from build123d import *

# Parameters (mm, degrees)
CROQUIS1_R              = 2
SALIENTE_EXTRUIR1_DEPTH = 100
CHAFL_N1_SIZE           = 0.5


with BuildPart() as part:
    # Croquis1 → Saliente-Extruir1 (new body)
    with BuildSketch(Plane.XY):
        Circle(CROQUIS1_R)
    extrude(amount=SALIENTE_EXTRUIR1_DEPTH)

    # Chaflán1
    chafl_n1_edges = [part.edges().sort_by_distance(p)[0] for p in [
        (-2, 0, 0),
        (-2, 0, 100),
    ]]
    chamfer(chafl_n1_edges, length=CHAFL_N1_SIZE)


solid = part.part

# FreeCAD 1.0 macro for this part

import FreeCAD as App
import Part
import Sketcher
Q = App.Units.Quantity


def edges_at(feature, points):
    """Names of the edges that pass closest to the given points."""
    edges = feature.Shape.Edges
    near = lambda p: min(range(len(edges)), key=lambda i: edges[i].distToShape(Part.Vertex(*p))[0])
    return sorted({f"Edge{near(p) + 1}" for p in points})

doc = App.newDocument("Part")
params = doc.addObject("Spreadsheet::Sheet", "Params")
for row, (alias, value) in enumerate([
    ("sketch1_diameter", "4 mm"),
    ("pad1_length", "100 mm"),
    ("chamfer_size", "0.5 mm"),
], start=1):
    params.set(f"A{row}", alias)
    params.set(f"B{row}", "=" + value)
    params.setAlias(f"B{row}", alias)

body = doc.addObject("PartDesign::Body", "Body")

# Sketch on XY plane
sketch1 = body.newObject("Sketcher::SketchObject", "Sketch")
sketch1.AttachmentSupport = (doc.getObject("XY_Plane"), [""])
sketch1.MapMode = "FlatFace"
sketch1.addGeometry(Part.Circle(App.Vector(0, 0, 0), App.Vector(0, 0, 1), 2), False)
sketch1.addConstraint([
    Sketcher.Constraint("Coincident", 0, 3, -1, 1),
    Sketcher.Constraint("Diameter", 0, Q("4 mm")),
])
sketch1.setExpression("Constraints[1]", "Params.sketch1_diameter")
pad1 = body.newObject("PartDesign::Pad", "Pad")
pad1.Profile = sketch1
pad1.setExpression("Length", "Params.pad1_length")
doc.recompute()

chamfer = body.newObject("PartDesign::Chamfer", "Chamfer")
chamfer.Base = (pad1, edges_at(pad1, [(-2, 0, 0), (-2, 0, 100)]))
chamfer.setExpression("Size", "Params.chamfer_size")

doc.recompute()
